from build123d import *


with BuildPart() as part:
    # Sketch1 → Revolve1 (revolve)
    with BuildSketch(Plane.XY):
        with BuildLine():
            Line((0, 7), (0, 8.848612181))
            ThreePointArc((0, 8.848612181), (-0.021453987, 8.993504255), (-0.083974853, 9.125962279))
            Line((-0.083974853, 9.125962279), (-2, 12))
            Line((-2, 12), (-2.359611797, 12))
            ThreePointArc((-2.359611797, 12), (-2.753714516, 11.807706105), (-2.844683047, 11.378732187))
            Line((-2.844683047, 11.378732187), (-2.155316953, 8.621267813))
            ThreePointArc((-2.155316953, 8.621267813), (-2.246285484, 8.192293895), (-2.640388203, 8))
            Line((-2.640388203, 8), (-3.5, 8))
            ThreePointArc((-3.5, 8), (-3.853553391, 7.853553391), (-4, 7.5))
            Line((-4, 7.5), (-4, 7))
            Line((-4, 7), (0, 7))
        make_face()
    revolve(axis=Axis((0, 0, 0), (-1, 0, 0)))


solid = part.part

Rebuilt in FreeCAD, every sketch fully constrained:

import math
import FreeCAD as App
import Part
import Sketcher
Q = App.Units.Quantity

doc = App.newDocument("Part")
body = doc.addObject("PartDesign::Body", "Body")

sketch1 = body.newObject("Sketcher::SketchObject", "Sketch")
sketch1.AttachmentSupport = (doc.getObject("XY_Plane"), [""])
sketch1.MapMode = "FlatFace"
sketch1.addGeometry(Part.LineSegment(App.Vector(0, 7, 0), App.Vector(0, 8.85, 0)), False)
sketch1.addGeometry(Part.ArcOfCircle(Part.Circle(App.Vector(-0.5, 8.85, 0), App.Vector(0, 0, 1), 0.5), math.radians(0), math.radians(34)), False)
sketch1.addGeometry(Part.LineSegment(App.Vector(-0.08, 9.13, 0), App.Vector(-2, 12, 0)), False)
sketch1.addGeometry(Part.LineSegment(App.Vector(-2, 12, 0), App.Vector(-2.36, 12, 0)), False)
sketch1.addGeometry(Part.ArcOfCircle(Part.Circle(App.Vector(-2.36, 11.5, 0), App.Vector(0, 0, 1), 0.5), math.radians(90), math.radians(194)), False)
sketch1.addGeometry(Part.LineSegment(App.Vector(-2.84, 11.38, 0), App.Vector(-2.16, 8.62, 0)), False)
sketch1.addGeometry(Part.ArcOfCircle(Part.Circle(App.Vector(-2.64, 8.5, 0), App.Vector(0, 0, 1), 0.5), math.radians(-90), math.radians(14)), False)
sketch1.addGeometry(Part.LineSegment(App.Vector(-2.64, 8, 0), App.Vector(-3.5, 8, 0)), False)
sketch1.addGeometry(Part.ArcOfCircle(Part.Circle(App.Vector(-3.5, 7.5, 0), App.Vector(0, 0, 1), 0.5), math.radians(90), math.radians(180)), False)
sketch1.addGeometry(Part.LineSegment(App.Vector(-4, 7.5, 0), App.Vector(-4, 7, 0)), False)
sketch1.addGeometry(Part.LineSegment(App.Vector(-4, 7, 0), App.Vector(0, 7, 0)), False)
sketch1.addConstraint(Sketcher.Constraint("Tangent", 0, 2, 1, 1))
sketch1.addConstraint(Sketcher.Constraint("Tangent", 1, 2, 2, 1))
sketch1.addConstraint(Sketcher.Constraint("Coincident", 2, 2, 3, 1))
sketch1.addConstraint(Sketcher.Constraint("Tangent", 3, 2, 4, 1))
sketch1.addConstraint(Sketcher.Constraint("Tangent", 4, 2, 5, 1))
sketch1.addConstraint(Sketcher.Constraint("Tangent", 5, 2, 6, 2))
sketch1.addConstraint(Sketcher.Constraint("Tangent", 6, 1, 7, 1))
sketch1.addConstraint(Sketcher.Constraint("Tangent", 7, 2, 8, 1))
sketch1.addConstraint(Sketcher.Constraint("Tangent", 8, 2, 9, 1))
sketch1.addConstraint(Sketcher.Constraint("Coincident", 9, 2, 10, 1))
sketch1.addConstraint(Sketcher.Constraint("Coincident", 10, 2, 0, 1))
sketch1.addConstraint(Sketcher.Constraint("Vertical", 0))
sketch1.addConstraint(Sketcher.Constraint("Horizontal", 3))
sketch1.addConstraint(Sketcher.Constraint("Horizontal", 7))
sketch1.addConstraint(Sketcher.Constraint("Vertical", 9))
sketch1.addConstraint(Sketcher.Constraint("Horizontal", 10))
sketch1.addConstraint(Sketcher.Constraint("Equal", 1, 4))
sketch1.addConstraint(Sketcher.Constraint("Equal", 4, 6))
sketch1.addConstraint(Sketcher.Constraint("Equal", 6, 8))
sketch1.addConstraint(Sketcher.Constraint("PointOnObject", 0, 2, -2))
sketch1.addConstraint(Sketcher.Constraint("Radius", 1, Q("0.5 mm")))
sketch1.addConstraint(Sketcher.Constraint("DistanceX", 10, 1, 10, 2, Q("4 mm")))
sketch1.addConstraint(Sketcher.Constraint("DistanceY", 9, 2, 9, 1, Q("0.5 mm")))
sketch1.addConstraint(Sketcher.Constraint("DistanceX", 2, 2, -1, 1, Q("2 mm")))
sketch1.addConstraint(Sketcher.Constraint("DistanceY", -1, 1, 2, 2, Q("12 mm")))
sketch1.addConstraint(Sketcher.Constraint("DistanceY", -1, 1, 6, 1, Q("8 mm")))
sketch1.addConstraint(Sketcher.Constraint("DistanceX", 3, 2, 3, 1, Q("0.359612 mm")))
sketch1.addConstraint(Sketcher.Constraint("DistanceX", 7, 2, 7, 1, Q("0.859612 mm")))
sketch1.addConstraint(Sketcher.Constraint("DistanceY", 0, 1, 0, 2, Q("1.848612 mm")))
revolution = body.newObject("PartDesign::Revolution", "Revolution")
revolution.Profile = sketch1
revolution.ReferenceAxis = (sketch1, ["H_Axis"])
revolution.Angle = 360

doc.recompute()
